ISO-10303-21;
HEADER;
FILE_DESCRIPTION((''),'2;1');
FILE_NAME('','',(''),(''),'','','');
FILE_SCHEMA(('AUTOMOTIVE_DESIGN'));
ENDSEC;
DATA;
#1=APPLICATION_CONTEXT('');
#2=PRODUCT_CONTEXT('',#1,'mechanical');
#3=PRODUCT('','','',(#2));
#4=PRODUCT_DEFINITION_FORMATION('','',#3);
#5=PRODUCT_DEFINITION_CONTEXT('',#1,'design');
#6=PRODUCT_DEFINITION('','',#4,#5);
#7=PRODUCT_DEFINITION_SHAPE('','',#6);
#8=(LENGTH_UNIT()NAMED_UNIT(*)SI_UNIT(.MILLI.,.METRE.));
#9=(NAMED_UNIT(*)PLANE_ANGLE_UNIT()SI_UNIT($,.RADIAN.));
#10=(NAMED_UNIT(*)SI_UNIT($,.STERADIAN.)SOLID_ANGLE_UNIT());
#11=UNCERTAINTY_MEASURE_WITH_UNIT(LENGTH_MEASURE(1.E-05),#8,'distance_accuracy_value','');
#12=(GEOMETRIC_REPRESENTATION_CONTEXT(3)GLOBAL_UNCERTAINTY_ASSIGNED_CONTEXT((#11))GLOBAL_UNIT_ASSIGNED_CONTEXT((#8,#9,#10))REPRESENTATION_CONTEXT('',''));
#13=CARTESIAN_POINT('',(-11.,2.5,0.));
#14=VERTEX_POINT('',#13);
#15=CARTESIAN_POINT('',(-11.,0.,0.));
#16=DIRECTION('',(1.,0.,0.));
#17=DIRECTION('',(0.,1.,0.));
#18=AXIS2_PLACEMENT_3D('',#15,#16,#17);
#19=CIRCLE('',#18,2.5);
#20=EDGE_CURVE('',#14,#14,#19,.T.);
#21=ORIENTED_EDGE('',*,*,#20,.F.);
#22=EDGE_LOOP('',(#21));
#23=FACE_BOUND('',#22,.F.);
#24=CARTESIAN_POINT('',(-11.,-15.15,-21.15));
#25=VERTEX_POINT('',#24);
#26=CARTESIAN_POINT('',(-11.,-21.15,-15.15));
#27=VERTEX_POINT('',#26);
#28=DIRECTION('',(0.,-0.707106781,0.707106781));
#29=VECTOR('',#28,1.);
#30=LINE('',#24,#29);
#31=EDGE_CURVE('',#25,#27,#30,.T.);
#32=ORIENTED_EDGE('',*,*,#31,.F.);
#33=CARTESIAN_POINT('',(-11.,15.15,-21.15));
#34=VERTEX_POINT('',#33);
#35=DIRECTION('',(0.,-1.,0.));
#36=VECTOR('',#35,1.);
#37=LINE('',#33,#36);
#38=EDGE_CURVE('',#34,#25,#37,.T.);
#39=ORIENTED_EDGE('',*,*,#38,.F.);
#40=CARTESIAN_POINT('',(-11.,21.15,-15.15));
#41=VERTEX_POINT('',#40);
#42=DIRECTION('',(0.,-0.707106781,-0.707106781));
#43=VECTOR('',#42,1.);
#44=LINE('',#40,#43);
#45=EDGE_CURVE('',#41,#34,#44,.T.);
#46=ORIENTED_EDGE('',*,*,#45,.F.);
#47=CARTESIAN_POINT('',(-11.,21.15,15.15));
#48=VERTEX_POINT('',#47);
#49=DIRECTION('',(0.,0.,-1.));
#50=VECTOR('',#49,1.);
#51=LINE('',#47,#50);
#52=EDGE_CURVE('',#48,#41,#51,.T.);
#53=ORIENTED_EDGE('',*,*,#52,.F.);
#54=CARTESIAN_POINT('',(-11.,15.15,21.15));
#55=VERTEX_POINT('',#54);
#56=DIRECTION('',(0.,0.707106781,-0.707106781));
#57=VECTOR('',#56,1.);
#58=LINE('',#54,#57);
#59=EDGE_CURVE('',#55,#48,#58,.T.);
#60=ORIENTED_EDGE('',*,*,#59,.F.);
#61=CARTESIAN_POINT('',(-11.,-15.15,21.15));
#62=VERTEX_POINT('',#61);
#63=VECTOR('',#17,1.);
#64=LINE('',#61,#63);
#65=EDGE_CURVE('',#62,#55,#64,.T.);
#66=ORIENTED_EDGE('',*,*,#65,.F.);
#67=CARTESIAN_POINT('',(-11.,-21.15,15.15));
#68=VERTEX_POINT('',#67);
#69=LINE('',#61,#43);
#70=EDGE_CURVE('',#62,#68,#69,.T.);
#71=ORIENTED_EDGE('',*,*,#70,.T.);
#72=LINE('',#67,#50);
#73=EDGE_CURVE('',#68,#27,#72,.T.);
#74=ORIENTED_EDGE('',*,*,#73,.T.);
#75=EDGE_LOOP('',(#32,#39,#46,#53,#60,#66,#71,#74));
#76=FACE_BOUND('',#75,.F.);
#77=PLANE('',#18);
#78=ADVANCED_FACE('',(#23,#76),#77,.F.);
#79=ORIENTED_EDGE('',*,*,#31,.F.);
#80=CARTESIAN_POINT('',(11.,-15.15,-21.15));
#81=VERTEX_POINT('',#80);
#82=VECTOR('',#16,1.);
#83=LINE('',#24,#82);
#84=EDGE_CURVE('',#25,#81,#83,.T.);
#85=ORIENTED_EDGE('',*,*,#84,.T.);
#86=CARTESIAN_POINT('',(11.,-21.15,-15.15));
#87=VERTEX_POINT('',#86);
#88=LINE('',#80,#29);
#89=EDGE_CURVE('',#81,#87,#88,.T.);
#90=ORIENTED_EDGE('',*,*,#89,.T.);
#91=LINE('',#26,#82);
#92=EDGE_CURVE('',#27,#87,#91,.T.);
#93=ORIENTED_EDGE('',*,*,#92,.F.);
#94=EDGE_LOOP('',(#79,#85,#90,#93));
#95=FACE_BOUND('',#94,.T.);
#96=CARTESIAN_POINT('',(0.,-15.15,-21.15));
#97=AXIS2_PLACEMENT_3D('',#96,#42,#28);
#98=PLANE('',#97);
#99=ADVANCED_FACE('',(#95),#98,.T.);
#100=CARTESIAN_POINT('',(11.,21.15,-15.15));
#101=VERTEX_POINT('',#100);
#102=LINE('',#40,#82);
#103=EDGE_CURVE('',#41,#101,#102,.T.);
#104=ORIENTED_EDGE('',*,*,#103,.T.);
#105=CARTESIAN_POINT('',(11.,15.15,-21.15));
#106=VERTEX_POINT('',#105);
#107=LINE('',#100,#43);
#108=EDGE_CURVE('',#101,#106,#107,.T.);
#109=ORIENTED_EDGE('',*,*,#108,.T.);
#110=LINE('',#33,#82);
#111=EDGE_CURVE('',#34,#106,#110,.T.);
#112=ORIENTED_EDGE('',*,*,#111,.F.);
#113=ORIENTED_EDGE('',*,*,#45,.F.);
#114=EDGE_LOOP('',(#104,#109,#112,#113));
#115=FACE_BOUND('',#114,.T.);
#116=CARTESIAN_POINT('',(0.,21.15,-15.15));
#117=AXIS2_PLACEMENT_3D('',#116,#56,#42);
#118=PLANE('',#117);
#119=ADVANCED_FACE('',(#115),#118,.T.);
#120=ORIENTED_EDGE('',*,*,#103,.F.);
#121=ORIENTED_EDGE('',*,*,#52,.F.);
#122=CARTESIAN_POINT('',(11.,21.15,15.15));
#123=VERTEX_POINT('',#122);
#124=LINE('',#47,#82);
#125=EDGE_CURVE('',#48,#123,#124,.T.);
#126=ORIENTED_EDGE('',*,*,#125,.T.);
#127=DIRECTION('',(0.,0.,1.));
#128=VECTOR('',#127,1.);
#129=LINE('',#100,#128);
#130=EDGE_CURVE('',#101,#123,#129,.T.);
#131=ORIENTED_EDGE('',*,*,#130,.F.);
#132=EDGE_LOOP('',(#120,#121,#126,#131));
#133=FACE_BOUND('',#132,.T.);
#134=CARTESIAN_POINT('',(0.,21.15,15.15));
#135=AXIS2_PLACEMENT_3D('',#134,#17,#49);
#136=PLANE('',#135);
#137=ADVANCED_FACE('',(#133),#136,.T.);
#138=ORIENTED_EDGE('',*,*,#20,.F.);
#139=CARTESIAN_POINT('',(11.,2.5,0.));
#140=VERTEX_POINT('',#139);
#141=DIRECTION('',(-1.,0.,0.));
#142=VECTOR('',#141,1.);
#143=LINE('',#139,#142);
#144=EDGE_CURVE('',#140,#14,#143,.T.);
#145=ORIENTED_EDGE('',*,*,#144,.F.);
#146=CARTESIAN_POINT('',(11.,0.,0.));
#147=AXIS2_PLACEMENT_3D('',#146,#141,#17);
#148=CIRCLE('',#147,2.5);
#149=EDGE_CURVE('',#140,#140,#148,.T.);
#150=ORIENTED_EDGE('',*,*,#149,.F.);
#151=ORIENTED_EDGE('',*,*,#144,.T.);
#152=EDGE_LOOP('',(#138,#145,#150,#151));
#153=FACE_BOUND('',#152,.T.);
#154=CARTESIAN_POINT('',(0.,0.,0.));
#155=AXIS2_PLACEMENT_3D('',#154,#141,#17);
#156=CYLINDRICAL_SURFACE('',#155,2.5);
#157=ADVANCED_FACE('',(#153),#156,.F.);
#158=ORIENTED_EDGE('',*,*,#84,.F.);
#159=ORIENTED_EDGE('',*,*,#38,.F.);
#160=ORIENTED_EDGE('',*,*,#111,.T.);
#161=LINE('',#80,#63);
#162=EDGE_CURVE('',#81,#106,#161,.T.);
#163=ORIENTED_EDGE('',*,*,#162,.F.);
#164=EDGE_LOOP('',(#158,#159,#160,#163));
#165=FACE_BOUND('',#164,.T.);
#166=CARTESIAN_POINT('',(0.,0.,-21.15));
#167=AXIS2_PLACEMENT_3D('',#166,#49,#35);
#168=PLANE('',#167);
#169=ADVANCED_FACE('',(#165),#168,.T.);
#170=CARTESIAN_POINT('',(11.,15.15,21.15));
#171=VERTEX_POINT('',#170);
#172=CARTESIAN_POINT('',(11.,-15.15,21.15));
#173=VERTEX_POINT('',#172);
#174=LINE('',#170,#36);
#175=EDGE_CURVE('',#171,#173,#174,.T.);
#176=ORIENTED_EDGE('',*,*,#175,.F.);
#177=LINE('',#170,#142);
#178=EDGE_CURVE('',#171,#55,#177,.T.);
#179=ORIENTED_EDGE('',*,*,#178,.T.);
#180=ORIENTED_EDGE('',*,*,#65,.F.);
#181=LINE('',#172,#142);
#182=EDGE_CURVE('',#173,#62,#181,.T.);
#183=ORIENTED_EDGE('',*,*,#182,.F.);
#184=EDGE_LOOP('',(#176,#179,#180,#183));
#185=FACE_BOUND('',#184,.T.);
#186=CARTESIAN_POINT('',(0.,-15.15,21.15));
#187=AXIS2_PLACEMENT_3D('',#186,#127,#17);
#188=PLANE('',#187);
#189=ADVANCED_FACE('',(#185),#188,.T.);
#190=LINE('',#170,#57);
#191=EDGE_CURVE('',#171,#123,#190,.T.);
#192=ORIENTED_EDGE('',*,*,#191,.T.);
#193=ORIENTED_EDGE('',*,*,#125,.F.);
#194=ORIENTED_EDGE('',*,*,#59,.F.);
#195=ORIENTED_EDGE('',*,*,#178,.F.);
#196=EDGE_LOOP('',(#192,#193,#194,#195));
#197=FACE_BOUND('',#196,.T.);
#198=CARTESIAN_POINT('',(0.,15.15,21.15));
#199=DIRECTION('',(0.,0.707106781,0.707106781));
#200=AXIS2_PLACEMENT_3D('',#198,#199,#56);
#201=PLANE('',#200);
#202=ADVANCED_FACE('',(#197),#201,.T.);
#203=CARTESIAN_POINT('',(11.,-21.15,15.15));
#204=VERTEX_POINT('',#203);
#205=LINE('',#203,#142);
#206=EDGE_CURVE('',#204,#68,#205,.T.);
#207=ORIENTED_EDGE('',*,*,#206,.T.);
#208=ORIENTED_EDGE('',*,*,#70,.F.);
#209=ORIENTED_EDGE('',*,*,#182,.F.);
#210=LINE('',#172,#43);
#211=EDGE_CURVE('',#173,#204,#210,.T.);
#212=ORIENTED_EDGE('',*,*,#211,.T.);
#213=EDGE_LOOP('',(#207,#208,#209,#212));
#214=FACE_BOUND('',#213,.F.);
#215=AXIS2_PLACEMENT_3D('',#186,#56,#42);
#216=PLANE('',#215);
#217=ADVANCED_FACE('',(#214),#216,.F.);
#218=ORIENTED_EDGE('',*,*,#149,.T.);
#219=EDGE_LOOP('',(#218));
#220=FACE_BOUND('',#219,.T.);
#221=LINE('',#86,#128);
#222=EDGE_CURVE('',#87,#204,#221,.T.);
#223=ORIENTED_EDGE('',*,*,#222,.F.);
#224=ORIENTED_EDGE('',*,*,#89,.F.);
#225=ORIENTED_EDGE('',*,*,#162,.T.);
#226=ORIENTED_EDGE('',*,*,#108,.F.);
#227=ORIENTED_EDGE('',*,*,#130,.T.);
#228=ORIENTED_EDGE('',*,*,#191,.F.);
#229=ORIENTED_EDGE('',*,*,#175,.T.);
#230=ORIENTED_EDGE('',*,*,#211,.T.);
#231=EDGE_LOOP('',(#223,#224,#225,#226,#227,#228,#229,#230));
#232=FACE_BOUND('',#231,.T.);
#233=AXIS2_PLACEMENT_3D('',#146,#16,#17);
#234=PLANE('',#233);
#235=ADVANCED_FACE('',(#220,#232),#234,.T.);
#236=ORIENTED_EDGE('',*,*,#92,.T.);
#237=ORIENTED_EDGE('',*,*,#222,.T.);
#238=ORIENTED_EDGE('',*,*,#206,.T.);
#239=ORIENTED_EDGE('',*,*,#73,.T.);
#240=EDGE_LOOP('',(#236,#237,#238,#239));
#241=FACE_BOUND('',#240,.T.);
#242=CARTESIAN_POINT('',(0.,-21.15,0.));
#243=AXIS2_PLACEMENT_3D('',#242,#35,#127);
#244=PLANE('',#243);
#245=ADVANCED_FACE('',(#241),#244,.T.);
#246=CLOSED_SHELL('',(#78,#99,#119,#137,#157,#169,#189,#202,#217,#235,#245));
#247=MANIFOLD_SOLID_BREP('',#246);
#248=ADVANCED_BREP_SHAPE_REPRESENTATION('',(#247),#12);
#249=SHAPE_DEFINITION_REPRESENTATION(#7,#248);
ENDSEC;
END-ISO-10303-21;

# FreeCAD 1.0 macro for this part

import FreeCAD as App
import Part
import Sketcher
from FreeCAD import Vector
Q = App.Units.Quantity

doc = App.newDocument("Part")
body = doc.addObject("PartDesign::Body", "Body")

sketch1 = doc.addObject("Sketcher::SketchObject", "Sketch")
body.addObject(sketch1)
sketch1.AttachmentSupport = (doc.YZ_Plane, [""])
sketch1.MapMode = "FlatFace"
sketch1.addGeometry(Part.LineSegment(Vector(-21.15, 15.15, 0), Vector(-21.15, -15.15, 0)), False)
sketch1.addGeometry(Part.LineSegment(Vector(-21.15, -15.15, 0), Vector(-15.15, -21.15, 0)), False)
sketch1.addGeometry(Part.LineSegment(Vector(-15.15, -21.15, 0), Vector(15.15, -21.15, 0)), False)
sketch1.addGeometry(Part.LineSegment(Vector(15.15, -21.15, 0), Vector(21.15, -15.15, 0)), False)
sketch1.addGeometry(Part.LineSegment(Vector(21.15, -15.15, 0), Vector(21.15, 15.15, 0)), False)
sketch1.addGeometry(Part.LineSegment(Vector(21.15, 15.15, 0), Vector(15.15, 21.15, 0)), False)
sketch1.addGeometry(Part.LineSegment(Vector(15.15, 21.15, 0), Vector(-15.15, 21.15, 0)), False)
sketch1.addGeometry(Part.LineSegment(Vector(-15.15, 21.15, 0), Vector(-21.15, 15.15, 0)), False)
sketch1.addGeometry(Part.Circle(Vector(0, 0, 0), Vector(0, 0, 1), 2.5), False)
sketch1.addConstraint(Sketcher.Constraint("Coincident", 0, 2, 1, 1))
sketch1.addConstraint(Sketcher.Constraint("Coincident", 1, 2, 2, 1))
sketch1.addConstraint(Sketcher.Constraint("Coincident", 2, 2, 3, 1))
sketch1.addConstraint(Sketcher.Constraint("Coincident", 3, 2, 4, 1))
sketch1.addConstraint(Sketcher.Constraint("Coincident", 4, 2, 5, 1))
sketch1.addConstraint(Sketcher.Constraint("Coincident", 5, 2, 6, 1))
sketch1.addConstraint(Sketcher.Constraint("Coincident", 6, 2, 7, 1))
sketch1.addConstraint(Sketcher.Constraint("Coincident", 7, 2, 0, 1))
sketch1.addConstraint(Sketcher.Constraint("Vertical", 0))
sketch1.addConstraint(Sketcher.Constraint("Horizontal", 2))
sketch1.addConstraint(Sketcher.Constraint("Vertical", 4))
sketch1.addConstraint(Sketcher.Constraint("Horizontal", 6))
sketch1.addConstraint(Sketcher.Constraint("Coincident", 8, 3, -1, 1))
sketch1.addConstraint(Sketcher.Constraint("Symmetric", 0, 2, 4, 2, -1, 1))
sketch1.addConstraint(Sketcher.Constraint("Symmetric", 1, 2, 5, 2, -1, 1))
sketch1.addConstraint(Sketcher.Constraint("Perpendicular", 1, 3))
sketch1.addConstraint(Sketcher.Constraint("Perpendicular", 5, 7))
sketch1.addConstraint(Sketcher.Constraint("Horizontal", 0, 2, 3, 2))
sketch1.addConstraint(Sketcher.Constraint("Horizontal", 4, 2, 7, 2))
sketch1.addConstraint(Sketcher.Constraint("Vertical", 2, 2, 5, 2))
sketch1.addConstraint(Sketcher.Constraint("Equal", 6, 0))
sketch1.addConstraint(Sketcher.Constraint("Diameter", 8, Q("5 mm")))
sketch1.addConstraint(Sketcher.Constraint("DistanceX", 0, 2, 1, 2, Q("6 mm")))
sketch1.addConstraint(Sketcher.Constraint("DistanceX", 0, 2, 3, 2, Q("42.3 mm")))
pad1 = doc.addObject("PartDesign::Pad", "Pad")
body.addObject(pad1)
pad1.Profile = sketch1
pad1.Length = 22
pad1.Midplane = True

doc.recompute()
